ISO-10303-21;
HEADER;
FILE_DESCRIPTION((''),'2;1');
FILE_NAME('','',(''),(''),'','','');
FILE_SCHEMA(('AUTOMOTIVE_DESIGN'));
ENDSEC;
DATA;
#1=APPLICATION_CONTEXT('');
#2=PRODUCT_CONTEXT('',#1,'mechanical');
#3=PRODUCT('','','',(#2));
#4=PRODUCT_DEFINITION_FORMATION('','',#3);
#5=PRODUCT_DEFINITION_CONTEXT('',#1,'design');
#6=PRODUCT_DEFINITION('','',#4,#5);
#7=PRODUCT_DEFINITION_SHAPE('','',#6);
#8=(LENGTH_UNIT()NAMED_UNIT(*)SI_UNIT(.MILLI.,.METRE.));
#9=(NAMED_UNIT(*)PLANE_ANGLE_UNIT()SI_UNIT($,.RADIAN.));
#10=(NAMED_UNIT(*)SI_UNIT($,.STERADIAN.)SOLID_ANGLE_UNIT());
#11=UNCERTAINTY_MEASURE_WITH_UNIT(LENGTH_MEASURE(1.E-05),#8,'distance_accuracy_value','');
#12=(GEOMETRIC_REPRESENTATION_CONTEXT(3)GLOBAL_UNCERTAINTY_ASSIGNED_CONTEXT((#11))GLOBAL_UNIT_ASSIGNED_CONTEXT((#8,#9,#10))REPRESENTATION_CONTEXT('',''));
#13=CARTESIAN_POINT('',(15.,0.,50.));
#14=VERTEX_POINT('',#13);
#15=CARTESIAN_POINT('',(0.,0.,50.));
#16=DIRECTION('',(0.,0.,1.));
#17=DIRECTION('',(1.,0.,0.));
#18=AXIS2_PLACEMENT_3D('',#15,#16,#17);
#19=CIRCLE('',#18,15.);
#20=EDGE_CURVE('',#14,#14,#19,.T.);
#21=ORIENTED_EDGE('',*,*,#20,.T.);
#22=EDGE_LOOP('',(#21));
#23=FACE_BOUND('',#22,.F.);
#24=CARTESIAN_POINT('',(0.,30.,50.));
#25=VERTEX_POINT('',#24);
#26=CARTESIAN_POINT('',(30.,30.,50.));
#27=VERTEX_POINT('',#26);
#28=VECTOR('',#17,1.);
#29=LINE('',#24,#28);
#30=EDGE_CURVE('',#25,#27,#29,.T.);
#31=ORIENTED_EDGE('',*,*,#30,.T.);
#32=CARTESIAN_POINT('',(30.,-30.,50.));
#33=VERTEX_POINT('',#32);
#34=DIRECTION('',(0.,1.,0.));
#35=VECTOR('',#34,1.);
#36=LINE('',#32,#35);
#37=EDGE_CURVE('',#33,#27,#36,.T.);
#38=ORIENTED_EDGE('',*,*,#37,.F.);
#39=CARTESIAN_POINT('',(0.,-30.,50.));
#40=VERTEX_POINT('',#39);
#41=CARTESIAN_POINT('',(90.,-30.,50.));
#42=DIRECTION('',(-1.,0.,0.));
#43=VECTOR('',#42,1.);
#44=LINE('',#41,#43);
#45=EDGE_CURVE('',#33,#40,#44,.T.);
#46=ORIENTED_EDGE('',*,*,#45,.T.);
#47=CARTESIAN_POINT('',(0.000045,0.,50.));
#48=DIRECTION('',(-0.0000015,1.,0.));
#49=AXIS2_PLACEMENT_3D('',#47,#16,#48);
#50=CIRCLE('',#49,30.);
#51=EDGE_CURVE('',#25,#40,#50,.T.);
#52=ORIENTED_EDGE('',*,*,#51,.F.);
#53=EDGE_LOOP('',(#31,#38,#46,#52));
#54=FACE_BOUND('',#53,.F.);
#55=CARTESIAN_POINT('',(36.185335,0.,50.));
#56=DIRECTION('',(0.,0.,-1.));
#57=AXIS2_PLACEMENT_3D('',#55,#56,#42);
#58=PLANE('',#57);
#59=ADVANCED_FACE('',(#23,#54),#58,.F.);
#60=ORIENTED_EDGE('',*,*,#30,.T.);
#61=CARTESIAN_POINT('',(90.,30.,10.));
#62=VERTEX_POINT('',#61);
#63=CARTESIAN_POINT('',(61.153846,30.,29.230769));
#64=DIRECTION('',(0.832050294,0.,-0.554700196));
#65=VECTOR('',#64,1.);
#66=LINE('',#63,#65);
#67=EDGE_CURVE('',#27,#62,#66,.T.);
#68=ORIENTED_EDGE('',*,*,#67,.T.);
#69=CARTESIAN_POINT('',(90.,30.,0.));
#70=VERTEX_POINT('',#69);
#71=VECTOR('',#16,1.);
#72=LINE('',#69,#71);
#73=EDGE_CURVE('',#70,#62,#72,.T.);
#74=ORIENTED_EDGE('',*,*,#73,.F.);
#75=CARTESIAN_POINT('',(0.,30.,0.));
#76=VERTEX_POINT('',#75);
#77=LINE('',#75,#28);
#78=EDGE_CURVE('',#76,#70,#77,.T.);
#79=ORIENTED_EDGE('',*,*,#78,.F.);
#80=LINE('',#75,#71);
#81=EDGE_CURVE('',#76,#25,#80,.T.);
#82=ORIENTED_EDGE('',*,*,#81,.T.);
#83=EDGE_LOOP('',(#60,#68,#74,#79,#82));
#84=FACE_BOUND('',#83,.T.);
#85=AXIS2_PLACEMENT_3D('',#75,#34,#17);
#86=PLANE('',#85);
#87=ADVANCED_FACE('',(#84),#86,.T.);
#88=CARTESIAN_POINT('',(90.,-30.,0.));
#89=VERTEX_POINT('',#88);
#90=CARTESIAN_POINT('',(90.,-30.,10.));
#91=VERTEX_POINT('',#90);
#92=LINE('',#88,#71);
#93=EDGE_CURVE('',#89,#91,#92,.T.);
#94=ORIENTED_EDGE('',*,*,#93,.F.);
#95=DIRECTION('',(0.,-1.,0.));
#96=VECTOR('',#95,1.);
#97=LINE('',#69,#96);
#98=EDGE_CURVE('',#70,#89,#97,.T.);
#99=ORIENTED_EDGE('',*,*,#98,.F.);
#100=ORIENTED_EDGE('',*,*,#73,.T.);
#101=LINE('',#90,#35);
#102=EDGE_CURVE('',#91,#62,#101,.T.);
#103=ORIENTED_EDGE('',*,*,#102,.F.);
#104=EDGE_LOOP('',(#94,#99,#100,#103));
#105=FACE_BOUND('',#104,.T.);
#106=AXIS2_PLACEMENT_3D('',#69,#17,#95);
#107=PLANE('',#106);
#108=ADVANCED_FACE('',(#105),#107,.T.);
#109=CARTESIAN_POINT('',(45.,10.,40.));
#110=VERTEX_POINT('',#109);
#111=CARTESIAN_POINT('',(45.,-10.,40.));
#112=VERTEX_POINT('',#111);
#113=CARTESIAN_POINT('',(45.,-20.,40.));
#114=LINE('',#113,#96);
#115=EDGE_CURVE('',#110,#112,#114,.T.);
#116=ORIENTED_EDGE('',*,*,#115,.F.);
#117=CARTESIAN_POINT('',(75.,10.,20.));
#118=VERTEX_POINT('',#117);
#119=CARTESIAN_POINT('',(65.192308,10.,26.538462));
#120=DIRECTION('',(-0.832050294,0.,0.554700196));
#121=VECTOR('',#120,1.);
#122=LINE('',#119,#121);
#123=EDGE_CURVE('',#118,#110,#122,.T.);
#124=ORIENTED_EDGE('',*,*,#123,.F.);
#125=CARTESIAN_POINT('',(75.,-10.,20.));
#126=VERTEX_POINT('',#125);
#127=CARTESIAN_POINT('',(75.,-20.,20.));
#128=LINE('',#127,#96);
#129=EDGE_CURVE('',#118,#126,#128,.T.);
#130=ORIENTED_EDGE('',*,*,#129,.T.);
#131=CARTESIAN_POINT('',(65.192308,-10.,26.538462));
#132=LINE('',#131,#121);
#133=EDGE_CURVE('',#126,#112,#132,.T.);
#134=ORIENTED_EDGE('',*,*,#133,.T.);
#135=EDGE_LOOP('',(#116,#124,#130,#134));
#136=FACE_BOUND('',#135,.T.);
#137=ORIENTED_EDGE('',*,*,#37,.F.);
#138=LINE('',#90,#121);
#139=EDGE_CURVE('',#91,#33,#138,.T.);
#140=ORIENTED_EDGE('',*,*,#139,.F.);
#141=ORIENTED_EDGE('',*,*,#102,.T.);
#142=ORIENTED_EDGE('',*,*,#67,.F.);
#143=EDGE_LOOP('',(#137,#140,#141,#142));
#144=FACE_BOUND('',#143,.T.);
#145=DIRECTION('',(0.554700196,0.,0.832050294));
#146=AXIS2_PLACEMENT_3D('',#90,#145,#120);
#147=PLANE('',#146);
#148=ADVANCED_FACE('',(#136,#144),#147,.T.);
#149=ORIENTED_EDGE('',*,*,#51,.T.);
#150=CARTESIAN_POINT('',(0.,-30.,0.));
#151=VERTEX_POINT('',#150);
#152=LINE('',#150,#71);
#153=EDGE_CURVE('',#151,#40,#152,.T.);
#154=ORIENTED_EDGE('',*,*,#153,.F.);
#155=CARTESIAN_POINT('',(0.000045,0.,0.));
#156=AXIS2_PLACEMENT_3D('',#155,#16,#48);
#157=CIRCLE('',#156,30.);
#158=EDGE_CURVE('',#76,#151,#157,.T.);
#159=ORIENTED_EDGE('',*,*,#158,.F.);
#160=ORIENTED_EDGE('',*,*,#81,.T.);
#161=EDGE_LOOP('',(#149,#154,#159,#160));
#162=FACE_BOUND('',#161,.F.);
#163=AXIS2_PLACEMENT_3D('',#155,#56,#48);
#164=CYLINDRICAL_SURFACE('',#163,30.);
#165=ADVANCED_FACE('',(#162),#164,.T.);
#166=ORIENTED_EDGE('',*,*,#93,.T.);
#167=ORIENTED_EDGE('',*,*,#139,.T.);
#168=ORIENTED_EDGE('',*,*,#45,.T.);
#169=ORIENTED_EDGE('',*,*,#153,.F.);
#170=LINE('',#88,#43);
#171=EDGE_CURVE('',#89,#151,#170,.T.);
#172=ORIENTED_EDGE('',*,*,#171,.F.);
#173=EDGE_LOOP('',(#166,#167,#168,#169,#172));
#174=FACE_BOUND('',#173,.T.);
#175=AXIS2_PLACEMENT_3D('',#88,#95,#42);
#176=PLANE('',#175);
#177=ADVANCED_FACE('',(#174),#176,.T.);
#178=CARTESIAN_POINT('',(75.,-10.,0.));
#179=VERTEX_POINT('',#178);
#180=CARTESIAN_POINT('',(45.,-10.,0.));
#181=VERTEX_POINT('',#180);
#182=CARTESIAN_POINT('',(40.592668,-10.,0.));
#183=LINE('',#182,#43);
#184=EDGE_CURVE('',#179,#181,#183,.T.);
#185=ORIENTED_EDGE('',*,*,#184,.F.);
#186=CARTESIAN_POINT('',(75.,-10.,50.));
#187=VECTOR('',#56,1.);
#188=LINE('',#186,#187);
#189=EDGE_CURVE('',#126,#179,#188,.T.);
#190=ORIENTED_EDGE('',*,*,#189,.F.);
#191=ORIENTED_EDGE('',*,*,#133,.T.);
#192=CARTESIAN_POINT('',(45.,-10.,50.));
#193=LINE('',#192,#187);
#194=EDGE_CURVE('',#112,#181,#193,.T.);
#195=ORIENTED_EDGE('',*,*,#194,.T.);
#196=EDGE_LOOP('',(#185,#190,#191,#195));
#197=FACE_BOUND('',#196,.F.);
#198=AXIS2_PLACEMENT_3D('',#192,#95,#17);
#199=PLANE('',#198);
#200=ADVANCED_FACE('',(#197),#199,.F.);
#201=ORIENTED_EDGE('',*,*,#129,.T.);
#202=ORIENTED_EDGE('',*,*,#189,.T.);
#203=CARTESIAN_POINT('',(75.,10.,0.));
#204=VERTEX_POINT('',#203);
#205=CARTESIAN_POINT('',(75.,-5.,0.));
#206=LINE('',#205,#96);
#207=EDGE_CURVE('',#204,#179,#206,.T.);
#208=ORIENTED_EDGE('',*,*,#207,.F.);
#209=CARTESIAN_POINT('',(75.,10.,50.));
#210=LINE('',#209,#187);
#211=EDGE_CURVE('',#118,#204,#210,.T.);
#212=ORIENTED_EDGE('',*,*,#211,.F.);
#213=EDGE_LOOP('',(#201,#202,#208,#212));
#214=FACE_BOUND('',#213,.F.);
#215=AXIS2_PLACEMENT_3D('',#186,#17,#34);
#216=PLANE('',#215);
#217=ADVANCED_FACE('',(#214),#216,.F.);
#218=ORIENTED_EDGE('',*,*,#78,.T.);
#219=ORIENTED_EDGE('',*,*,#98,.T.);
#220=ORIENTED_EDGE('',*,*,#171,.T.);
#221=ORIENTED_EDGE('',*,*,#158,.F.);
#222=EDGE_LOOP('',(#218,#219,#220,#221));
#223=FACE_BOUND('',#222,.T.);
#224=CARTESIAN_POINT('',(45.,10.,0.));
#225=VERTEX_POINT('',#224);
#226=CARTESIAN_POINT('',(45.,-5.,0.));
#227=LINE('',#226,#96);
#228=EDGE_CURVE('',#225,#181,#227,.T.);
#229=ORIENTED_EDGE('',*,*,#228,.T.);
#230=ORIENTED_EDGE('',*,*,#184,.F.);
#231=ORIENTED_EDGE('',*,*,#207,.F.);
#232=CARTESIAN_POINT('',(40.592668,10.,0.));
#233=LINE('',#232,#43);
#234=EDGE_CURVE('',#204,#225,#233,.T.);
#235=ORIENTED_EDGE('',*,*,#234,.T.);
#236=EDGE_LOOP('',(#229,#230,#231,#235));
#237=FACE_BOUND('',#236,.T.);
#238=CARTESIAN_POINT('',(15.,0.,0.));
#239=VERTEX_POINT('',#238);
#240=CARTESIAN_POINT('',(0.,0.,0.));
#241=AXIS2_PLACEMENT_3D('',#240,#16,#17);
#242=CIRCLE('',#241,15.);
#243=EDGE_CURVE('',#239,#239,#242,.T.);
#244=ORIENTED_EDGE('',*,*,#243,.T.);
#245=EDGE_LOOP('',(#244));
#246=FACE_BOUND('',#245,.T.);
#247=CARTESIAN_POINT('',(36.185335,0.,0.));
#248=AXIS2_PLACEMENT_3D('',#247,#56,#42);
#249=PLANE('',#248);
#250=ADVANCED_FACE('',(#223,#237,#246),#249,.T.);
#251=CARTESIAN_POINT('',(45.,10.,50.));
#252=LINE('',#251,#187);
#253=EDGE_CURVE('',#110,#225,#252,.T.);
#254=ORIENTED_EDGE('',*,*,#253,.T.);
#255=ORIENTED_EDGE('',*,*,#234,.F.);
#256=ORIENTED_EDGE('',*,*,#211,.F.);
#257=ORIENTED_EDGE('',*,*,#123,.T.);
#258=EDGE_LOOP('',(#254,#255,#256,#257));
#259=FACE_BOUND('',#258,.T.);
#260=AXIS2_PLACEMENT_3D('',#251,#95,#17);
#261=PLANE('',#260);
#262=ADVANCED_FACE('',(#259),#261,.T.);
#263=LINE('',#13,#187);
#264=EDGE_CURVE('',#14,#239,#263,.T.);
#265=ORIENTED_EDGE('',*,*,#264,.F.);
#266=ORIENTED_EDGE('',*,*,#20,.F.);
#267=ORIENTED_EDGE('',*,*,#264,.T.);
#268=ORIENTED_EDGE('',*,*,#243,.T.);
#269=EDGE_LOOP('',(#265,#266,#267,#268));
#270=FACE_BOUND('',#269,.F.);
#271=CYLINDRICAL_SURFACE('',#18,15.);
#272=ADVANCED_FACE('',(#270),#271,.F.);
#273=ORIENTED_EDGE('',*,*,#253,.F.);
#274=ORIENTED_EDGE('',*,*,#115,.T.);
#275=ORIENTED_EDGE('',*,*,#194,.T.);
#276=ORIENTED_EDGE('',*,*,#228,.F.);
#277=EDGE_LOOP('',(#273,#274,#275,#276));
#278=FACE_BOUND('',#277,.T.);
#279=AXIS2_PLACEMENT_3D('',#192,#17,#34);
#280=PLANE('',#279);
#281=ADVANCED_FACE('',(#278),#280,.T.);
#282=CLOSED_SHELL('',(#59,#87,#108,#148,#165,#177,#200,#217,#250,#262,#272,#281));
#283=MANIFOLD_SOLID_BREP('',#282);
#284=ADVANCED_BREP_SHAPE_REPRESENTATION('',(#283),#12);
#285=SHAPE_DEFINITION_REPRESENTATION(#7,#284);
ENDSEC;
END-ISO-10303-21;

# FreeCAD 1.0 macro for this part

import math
import FreeCAD as App
import Part
import Sketcher

doc = App.newDocument("Part")
body = doc.addObject("PartDesign::Body", "Body")

# Sketch on XY plane
sketch1 = body.newObject("Sketcher::SketchObject", "Sketch")
sketch1.AttachmentSupport = (doc.getObject("XY_Plane"), [""])
sketch1.MapMode = "FlatFace"
sketch1.addGeometry([
    Part.LineSegment(App.Vector(90, 30, 0), App.Vector(0, 30, 0)),
    Part.ArcOfCircle(Part.Circle(App.Vector(0.000045, 0, 0), App.Vector(0, 0, 1), 30), math.radians(90.000086), math.radians(269.999914)),
    Part.LineSegment(App.Vector(0, -30, 0), App.Vector(90, -30, 0)),
    Part.LineSegment(App.Vector(90, -30, 0), App.Vector(90, 30, 0)),
], False)
sketch1.addConstraint([
    Sketcher.Constraint("Coincident", 0, 2, 1, 1),
    Sketcher.Constraint("Coincident", 1, 2, 2, 1),
    Sketcher.Constraint("Coincident", 2, 2, 3, 1),
    Sketcher.Constraint("Coincident", 3, 2, 0, 1),
    Sketcher.Constraint("Horizontal", 0),
    Sketcher.Constraint("Horizontal", 2),
    Sketcher.Constraint("Vertical", 3),
    Sketcher.Constraint("PointOnObject", 1, 3, -1),
    Sketcher.Constraint("PointOnObject", 0, 2, -2),
    Sketcher.Constraint("PointOnObject", 1, 2, -2),
    Sketcher.Constraint("Radius", 1, 30.0),
    Sketcher.Constraint("DistanceX", 0, 2, 0, 1, 90.0),
    Sketcher.Constraint("DistanceX", 1, 3, 2, 2, 89.999955),
])
pad1 = body.newObject("PartDesign::Pad", "Pad")
pad1.Profile = sketch1
pad1.Length = 50

# Sketch on XY plane
sketch2 = body.newObject("Sketcher::SketchObject", "Sketch001")
sketch2.AttachmentSupport = (doc.getObject("XY_Plane"), [""])
sketch2.MapMode = "FlatFace"
sketch2.AttachmentOffset = App.Placement(App.Vector(0, 0, 50), App.Rotation())
sketch2.addGeometry([
    Part.LineSegment(App.Vector(45, 10, 0), App.Vector(45, -10, 0)),
    Part.LineSegment(App.Vector(45, -10, 0), App.Vector(75, -10, 0)),
    Part.LineSegment(App.Vector(75, -10, 0), App.Vector(75, 10, 0)),
    Part.LineSegment(App.Vector(75, 10, 0), App.Vector(45, 10, 0)),
], False)
sketch2.addConstraint([
    Sketcher.Constraint("Coincident", 0, 2, 1, 1),
    Sketcher.Constraint("Coincident", 1, 2, 2, 1),
    Sketcher.Constraint("Coincident", 2, 2, 3, 1),
    Sketcher.Constraint("Coincident", 3, 2, 0, 1),
    Sketcher.Constraint("Vertical", 0),
    Sketcher.Constraint("Horizontal", 1),
    Sketcher.Constraint("Vertical", 2),
    Sketcher.Constraint("Horizontal", 3),
    Sketcher.Constraint("DistanceX", 1, 1, 1, 2, 30.0),
    Sketcher.Constraint("DistanceY", 0, 2, 0, 1, 20.0),
    Sketcher.Constraint("DistanceX", -1, 1, 0, 2, 45.0),
    Sketcher.Constraint("DistanceY", 0, 2, -1, 1, 10.0),
])
pocket1 = body.newObject("PartDesign::Pocket", "Pocket")
pocket1.Profile = sketch2
pocket1.Type = "ThroughAll"

# Sketch on XZ plane
sketch3 = body.newObject("Sketcher::SketchObject", "Sketch002")
sketch3.AttachmentSupport = (doc.getObject("XZ_Plane"), [""])
sketch3.MapMode = "FlatFace"
sketch3.AttachmentOffset = App.Placement(App.Vector(0, 0, 30), App.Rotation())
sketch3.addGeometry([
    Part.LineSegment(App.Vector(90, 50, 0), App.Vector(30, 50, 0)),
    Part.LineSegment(App.Vector(30, 50, 0), App.Vector(90, 10, 0)),
    Part.LineSegment(App.Vector(90, 10, 0), App.Vector(90, 50, 0)),
], False)
sketch3.addConstraint([
    Sketcher.Constraint("Coincident", 0, 2, 1, 1),
    Sketcher.Constraint("Coincident", 1, 2, 2, 1),
    Sketcher.Constraint("Coincident", 2, 2, 0, 1),
    Sketcher.Constraint("Horizontal", 0),
    Sketcher.Constraint("Vertical", 2),
    Sketcher.Constraint("DistanceX", 0, 2, 0, 1, 60.0),
    Sketcher.Constraint("DistanceY", 2, 1, 2, 2, 40.0),
    Sketcher.Constraint("DistanceX", -1, 1, 0, 2, 30.0),
    Sketcher.Constraint("DistanceY", -1, 1, 0, 2, 50.0),
])
pocket2 = body.newObject("PartDesign::Pocket", "Pocket001")
pocket2.Profile = sketch3
pocket2.Type = "ThroughAll"

# Sketch on XY plane
sketch4 = body.newObject("Sketcher::SketchObject", "Sketch003")
sketch4.AttachmentSupport = (doc.getObject("XY_Plane"), [""])
sketch4.MapMode = "FlatFace"
sketch4.AttachmentOffset = App.Placement(App.Vector(0, 0, 50), App.Rotation())
sketch4.addGeometry(Part.Circle(App.Vector(0, 0, 0), App.Vector(0, 0, 1), 15), False)
sketch4.addConstraint([
    Sketcher.Constraint("Coincident", 0, 3, -1, 1),
    Sketcher.Constraint("Diameter", 0, 30.0),
])
pocket3 = body.newObject("PartDesign::Pocket", "Pocket002")
pocket3.Profile = sketch4
pocket3.Type = "ThroughAll"

doc.recompute()
